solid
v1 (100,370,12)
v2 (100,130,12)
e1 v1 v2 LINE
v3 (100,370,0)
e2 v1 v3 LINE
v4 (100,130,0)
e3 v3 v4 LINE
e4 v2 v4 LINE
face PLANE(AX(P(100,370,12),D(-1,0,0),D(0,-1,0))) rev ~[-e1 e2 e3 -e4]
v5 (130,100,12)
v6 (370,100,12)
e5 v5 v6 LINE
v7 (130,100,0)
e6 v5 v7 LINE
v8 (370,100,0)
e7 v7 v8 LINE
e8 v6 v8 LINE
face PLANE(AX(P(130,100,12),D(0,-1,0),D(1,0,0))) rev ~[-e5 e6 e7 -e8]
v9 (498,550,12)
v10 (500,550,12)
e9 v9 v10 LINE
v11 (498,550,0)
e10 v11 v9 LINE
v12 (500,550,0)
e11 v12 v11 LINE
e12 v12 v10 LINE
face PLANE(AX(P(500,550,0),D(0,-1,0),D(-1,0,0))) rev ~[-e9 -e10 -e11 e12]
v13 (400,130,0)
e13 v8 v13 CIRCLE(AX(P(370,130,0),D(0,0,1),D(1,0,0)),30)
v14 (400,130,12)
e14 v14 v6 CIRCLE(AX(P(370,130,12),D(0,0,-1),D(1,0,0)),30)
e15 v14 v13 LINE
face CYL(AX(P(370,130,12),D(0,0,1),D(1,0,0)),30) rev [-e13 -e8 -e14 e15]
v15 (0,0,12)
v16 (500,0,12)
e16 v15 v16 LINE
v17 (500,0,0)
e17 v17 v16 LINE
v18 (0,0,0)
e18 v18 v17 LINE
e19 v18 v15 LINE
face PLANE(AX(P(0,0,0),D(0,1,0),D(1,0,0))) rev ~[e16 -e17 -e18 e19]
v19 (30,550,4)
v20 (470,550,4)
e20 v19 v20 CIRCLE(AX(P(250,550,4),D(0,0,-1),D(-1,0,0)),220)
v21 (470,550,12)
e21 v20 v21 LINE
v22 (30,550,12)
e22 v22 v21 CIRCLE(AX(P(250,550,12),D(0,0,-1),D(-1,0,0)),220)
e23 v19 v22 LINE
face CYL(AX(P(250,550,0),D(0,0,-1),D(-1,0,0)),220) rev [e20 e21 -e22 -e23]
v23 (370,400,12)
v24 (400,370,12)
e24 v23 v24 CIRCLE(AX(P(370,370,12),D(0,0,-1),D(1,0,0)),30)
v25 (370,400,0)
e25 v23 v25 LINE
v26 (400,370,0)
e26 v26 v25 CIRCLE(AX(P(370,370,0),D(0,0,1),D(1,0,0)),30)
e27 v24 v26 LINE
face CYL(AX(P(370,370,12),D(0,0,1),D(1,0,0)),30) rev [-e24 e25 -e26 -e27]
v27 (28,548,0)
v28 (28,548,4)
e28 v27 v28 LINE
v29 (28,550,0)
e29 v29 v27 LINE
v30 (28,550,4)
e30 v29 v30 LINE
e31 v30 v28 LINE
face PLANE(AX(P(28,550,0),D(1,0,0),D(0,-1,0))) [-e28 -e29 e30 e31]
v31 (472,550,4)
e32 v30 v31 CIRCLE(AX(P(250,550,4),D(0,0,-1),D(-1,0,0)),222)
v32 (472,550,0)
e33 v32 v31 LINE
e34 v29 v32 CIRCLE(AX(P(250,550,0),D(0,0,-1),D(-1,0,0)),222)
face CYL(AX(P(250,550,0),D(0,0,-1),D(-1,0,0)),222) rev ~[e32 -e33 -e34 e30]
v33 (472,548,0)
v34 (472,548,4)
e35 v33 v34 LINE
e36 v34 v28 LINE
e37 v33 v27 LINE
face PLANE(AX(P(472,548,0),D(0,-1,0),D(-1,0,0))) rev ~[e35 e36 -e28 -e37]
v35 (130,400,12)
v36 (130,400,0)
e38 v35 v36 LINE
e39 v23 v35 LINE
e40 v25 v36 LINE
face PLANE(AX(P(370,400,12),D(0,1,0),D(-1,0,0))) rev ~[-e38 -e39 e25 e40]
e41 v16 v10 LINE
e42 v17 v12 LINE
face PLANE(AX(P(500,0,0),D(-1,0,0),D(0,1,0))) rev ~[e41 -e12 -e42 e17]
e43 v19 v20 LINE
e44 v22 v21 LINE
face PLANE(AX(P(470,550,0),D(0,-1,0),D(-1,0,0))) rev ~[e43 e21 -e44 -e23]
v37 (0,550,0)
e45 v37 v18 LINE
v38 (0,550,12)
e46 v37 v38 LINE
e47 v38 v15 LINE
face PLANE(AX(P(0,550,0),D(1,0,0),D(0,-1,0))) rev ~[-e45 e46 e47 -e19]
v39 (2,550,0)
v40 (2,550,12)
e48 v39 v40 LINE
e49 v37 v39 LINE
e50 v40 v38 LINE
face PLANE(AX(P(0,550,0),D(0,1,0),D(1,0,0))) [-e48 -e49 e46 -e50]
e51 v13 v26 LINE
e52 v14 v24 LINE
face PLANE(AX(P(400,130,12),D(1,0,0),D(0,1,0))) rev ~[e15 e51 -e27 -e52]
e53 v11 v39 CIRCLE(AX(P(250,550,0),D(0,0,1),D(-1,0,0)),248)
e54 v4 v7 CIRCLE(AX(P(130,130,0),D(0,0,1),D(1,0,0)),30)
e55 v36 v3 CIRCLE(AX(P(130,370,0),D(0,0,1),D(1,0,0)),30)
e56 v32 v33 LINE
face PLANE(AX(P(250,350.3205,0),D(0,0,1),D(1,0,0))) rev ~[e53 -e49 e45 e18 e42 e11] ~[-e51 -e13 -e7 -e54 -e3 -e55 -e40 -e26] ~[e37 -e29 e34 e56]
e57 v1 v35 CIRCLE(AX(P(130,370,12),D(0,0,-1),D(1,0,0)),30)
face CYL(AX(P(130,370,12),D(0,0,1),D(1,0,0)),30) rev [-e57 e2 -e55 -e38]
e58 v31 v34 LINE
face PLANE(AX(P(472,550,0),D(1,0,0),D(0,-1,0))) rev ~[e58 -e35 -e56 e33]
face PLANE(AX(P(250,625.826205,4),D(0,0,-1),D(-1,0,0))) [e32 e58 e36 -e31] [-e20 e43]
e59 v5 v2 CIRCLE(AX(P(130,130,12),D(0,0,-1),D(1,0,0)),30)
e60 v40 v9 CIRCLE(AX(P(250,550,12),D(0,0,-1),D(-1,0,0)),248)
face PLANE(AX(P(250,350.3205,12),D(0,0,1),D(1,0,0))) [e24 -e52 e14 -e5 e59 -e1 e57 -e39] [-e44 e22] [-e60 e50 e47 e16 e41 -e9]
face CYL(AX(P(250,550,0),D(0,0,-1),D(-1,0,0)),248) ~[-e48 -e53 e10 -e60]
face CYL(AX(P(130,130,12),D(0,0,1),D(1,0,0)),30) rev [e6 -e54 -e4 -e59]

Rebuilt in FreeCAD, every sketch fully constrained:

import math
import FreeCAD as App
import Part
import Sketcher
from FreeCAD import Vector
Q = App.Units.Quantity

doc = App.newDocument("Part")
params = doc.addObject("Spreadsheet::Sheet", "Params")
for row, (alias, value) in enumerate([
    ("sketch1_radius", "250 mm"),
    ("sketch1_height", "550 mm"),
    ("pad1_length", "12 mm"),
    ("sketch2_radius", "30 mm"),
    ("sketch2_width", "240 mm"),
    ("pocket1_length", "429.6561 mm"),
    ("sketch3_radius", "220 mm"),
    ("pocket2_length", "186.1515 mm"),
    ("sketch4_radius", "222 mm"),
    ("sketch4_height", "2 mm"),
    ("pocket3_length", "4 mm"),
    ("sketch5_radius", "250 mm"),
    ("sketch5_radius2", "248 mm"),
    ("pocket4_length", "184.2167 mm"),
], start=1):
    params.set(f"A{row}", alias)
    params.set(f"B{row}", "=" + value)
    params.setAlias(f"B{row}", alias)

body = doc.addObject("PartDesign::Body", "Body")

# Sketch on XY plane
sketch1 = body.newObject("Sketcher::SketchObject", "Sketch")
sketch1.AttachmentSupport = (doc.getObject("XY_Plane"), [""])
sketch1.MapMode = "FlatFace"
sketch1.addGeometry(Part.LineSegment(Vector(0, 550, 0), Vector(0, 0, 0)), False)
sketch1.addGeometry(Part.LineSegment(Vector(0, 0, 0), Vector(500, 0, 0)), False)
sketch1.addGeometry(Part.LineSegment(Vector(500, 0, 0), Vector(500, 550, 0)), False)
sketch1.addGeometry(Part.ArcOfCircle(Part.Circle(Vector(250, 550, 0), Vector(0, 0, 1), 250), math.radians(0), math.radians(180)), False)
sketch1.addConstraint(Sketcher.Constraint("Coincident", 0, 2, 1, 1))
sketch1.addConstraint(Sketcher.Constraint("Coincident", 1, 2, 2, 1))
sketch1.addConstraint(Sketcher.Constraint("Tangent", 2, 2, 3, 1))
sketch1.addConstraint(Sketcher.Constraint("Tangent", 3, 2, 0, 1))
sketch1.addConstraint(Sketcher.Constraint("Vertical", 0))
sketch1.addConstraint(Sketcher.Constraint("Horizontal", 1))
sketch1.addConstraint(Sketcher.Constraint("Vertical", 2))
sketch1.addConstraint(Sketcher.Constraint("Coincident", 0, 2, -1, 1))
sketch1.addConstraint(Sketcher.Constraint("Radius", 3, Q("250 mm")))
sketch1.addConstraint(Sketcher.Constraint("DistanceY", 0, 2, 0, 1, Q("550 mm")))
sketch1.setExpression("Constraints[8]", "Params.sketch1_radius")
sketch1.setExpression("Constraints[9]", "Params.sketch1_height")
pad1 = body.newObject("PartDesign::Pad", "Pad")
pad1.Profile = sketch1
pad1.setExpression("Length", "Params.pad1_length")

# Sketch on XY plane
sketch2 = body.newObject("Sketcher::SketchObject", "Sketch001")
sketch2.AttachmentSupport = (doc.getObject("XY_Plane"), [""])
sketch2.MapMode = "FlatFace"
sketch2.AttachmentOffset = App.Placement(Vector(0, 0, 12), App.Rotation())
sketch2.addGeometry(Part.ArcOfCircle(Part.Circle(Vector(130, 130, 0), Vector(0, 0, 1), 30), math.radians(180), math.radians(270)), False)
sketch2.addGeometry(Part.LineSegment(Vector(130, 100, 0), Vector(370, 100, 0)), False)
sketch2.addGeometry(Part.ArcOfCircle(Part.Circle(Vector(370, 130, 0), Vector(0, 0, 1), 30), math.radians(-90), math.radians(0)), False)
sketch2.addGeometry(Part.LineSegment(Vector(400, 130, 0), Vector(400, 370, 0)), False)
sketch2.addGeometry(Part.ArcOfCircle(Part.Circle(Vector(370, 370, 0), Vector(0, 0, 1), 30), math.radians(0), math.radians(90)), False)
sketch2.addGeometry(Part.LineSegment(Vector(370, 400, 0), Vector(130, 400, 0)), False)
sketch2.addGeometry(Part.ArcOfCircle(Part.Circle(Vector(130, 370, 0), Vector(0, 0, 1), 30), math.radians(90), math.radians(180)), False)
sketch2.addGeometry(Part.LineSegment(Vector(100, 370, 0), Vector(100, 130, 0)), False)
sketch2.addConstraint(Sketcher.Constraint("Tangent", 0, 2, 1, 1))
sketch2.addConstraint(Sketcher.Constraint("Tangent", 1, 2, 2, 1))
sketch2.addConstraint(Sketcher.Constraint("Tangent", 2, 2, 3, 1))
sketch2.addConstraint(Sketcher.Constraint("Tangent", 3, 2, 4, 1))
sketch2.addConstraint(Sketcher.Constraint("Tangent", 4, 2, 5, 1))
sketch2.addConstraint(Sketcher.Constraint("Tangent", 5, 2, 6, 1))
sketch2.addConstraint(Sketcher.Constraint("Tangent", 6, 2, 7, 1))
sketch2.addConstraint(Sketcher.Constraint("Tangent", 7, 2, 0, 1))
sketch2.addConstraint(Sketcher.Constraint("Horizontal", 1))
sketch2.addConstraint(Sketcher.Constraint("Vertical", 3))
sketch2.addConstraint(Sketcher.Constraint("Horizontal", 5))
sketch2.addConstraint(Sketcher.Constraint("Vertical", 7))
sketch2.addConstraint(Sketcher.Constraint("Equal", 0, 2))
sketch2.addConstraint(Sketcher.Constraint("Equal", 2, 4))
sketch2.addConstraint(Sketcher.Constraint("Equal", 4, 6))
sketch2.addConstraint(Sketcher.Constraint("Equal", 5, 3))
sketch2.addConstraint(Sketcher.Constraint("Radius", 0, Q("30 mm")))
sketch2.addConstraint(Sketcher.Constraint("DistanceX", 1, 1, 1, 2, Q("240 mm")))
sketch2.addConstraint(Sketcher.Constraint("DistanceX", -1, 1, 0, 3, Q("130 mm")))
sketch2.addConstraint(Sketcher.Constraint("DistanceY", -1, 1, 0, 3, Q("130 mm")))
sketch2.setExpression("Constraints[16]", "Params.sketch2_radius")
sketch2.setExpression("Constraints[17]", "Params.sketch2_width")
pocket1 = body.newObject("PartDesign::Pocket", "Pocket")
pocket1.Profile = sketch2
pocket1.setExpression("Length", "Params.pocket1_length")

# Sketch on XY plane
sketch3 = body.newObject("Sketcher::SketchObject", "Sketch002")
sketch3.AttachmentSupport = (doc.getObject("XY_Plane"), [""])
sketch3.MapMode = "FlatFace"
sketch3.addGeometry(Part.ArcOfCircle(Part.Circle(Vector(250, 550, 0), Vector(0, 0, 1), 220), math.radians(0), math.radians(180)), False)
sketch3.addGeometry(Part.LineSegment(Vector(470, 550, 0), Vector(30, 550, 0)), False)
sketch3.addConstraint(Sketcher.Constraint("Coincident", 0, 1, 1, 1))
sketch3.addConstraint(Sketcher.Constraint("Coincident", 1, 2, 0, 2))
sketch3.addConstraint(Sketcher.Constraint("Horizontal", 1))
sketch3.addConstraint(Sketcher.Constraint("Radius", 0, Q("220 mm")))
sketch3.addConstraint(Sketcher.Constraint("DistanceX", -1, 1, 0, 3, Q("250 mm")))
sketch3.addConstraint(Sketcher.Constraint("DistanceY", -1, 1, 0, 3, Q("550 mm")))
sketch3.addConstraint(Sketcher.Constraint("DistanceY", -1, 1, 0, 1, Q("550 mm")))
sketch3.setExpression("Constraints[3]", "Params.sketch3_radius")
pocket2 = body.newObject("PartDesign::Pocket", "Pocket001")
pocket2.Profile = sketch3
pocket2.setExpression("Length", "Params.pocket2_length")
pocket2.Reversed = True

# Sketch on XY plane
sketch4 = body.newObject("Sketcher::SketchObject", "Sketch003")
sketch4.AttachmentSupport = (doc.getObject("XY_Plane"), [""])
sketch4.MapMode = "FlatFace"
sketch4.addGeometry(Part.LineSegment(Vector(28, 548, 0), Vector(28, 550, 0)), False)
sketch4.addGeometry(Part.ArcOfCircle(Part.Circle(Vector(250, 550, 0), Vector(0, 0, 1), 222), math.radians(0), math.radians(180)), False)
sketch4.addGeometry(Part.LineSegment(Vector(472, 550, 0), Vector(472, 548, 0)), False)
sketch4.addGeometry(Part.LineSegment(Vector(472, 548, 0), Vector(28, 548, 0)), False)
sketch4.addConstraint(Sketcher.Constraint("Tangent", 0, 2, 1, 2))
sketch4.addConstraint(Sketcher.Constraint("Tangent", 1, 1, 2, 1))
sketch4.addConstraint(Sketcher.Constraint("Coincident", 2, 2, 3, 1))
sketch4.addConstraint(Sketcher.Constraint("Coincident", 3, 2, 0, 1))
sketch4.addConstraint(Sketcher.Constraint("Vertical", 0))
sketch4.addConstraint(Sketcher.Constraint("Vertical", 2))
sketch4.addConstraint(Sketcher.Constraint("Horizontal", 3))
sketch4.addConstraint(Sketcher.Constraint("Radius", 1, Q("222 mm")))
sketch4.addConstraint(Sketcher.Constraint("DistanceY", 0, 1, 0, 2, Q("2 mm")))
sketch4.addConstraint(Sketcher.Constraint("DistanceX", -1, 1, 1, 3, Q("250 mm")))
sketch4.addConstraint(Sketcher.Constraint("DistanceY", -1, 1, 1, 3, Q("550 mm")))
sketch4.setExpression("Constraints[7]", "Params.sketch4_radius")
sketch4.setExpression("Constraints[8]", "Params.sketch4_height")
pocket3 = body.newObject("PartDesign::Pocket", "Pocket002")
pocket3.Profile = sketch4
pocket3.setExpression("Length", "Params.pocket3_length")
pocket3.Reversed = True

# Sketch on XY plane
sketch5 = body.newObject("Sketcher::SketchObject", "Sketch004")
sketch5.AttachmentSupport = (doc.getObject("XY_Plane"), [""])
sketch5.MapMode = "FlatFace"
sketch5.addGeometry(Part.LineSegment(Vector(2, 550, 0), Vector(0, 550, 0)), False)
sketch5.addGeometry(Part.ArcOfCircle(Part.Circle(Vector(250, 550, 0), Vector(0, 0, 1), 250), math.radians(0), math.radians(180)), False)
sketch5.addGeometry(Part.LineSegment(Vector(500, 550, 0), Vector(498, 550, 0)), False)
sketch5.addGeometry(Part.ArcOfCircle(Part.Circle(Vector(250, 550, 0), Vector(0, 0, 1), 248), math.radians(0), math.radians(180)), False)
sketch5.addConstraint(Sketcher.Constraint("Coincident", 0, 2, 1, 2))
sketch5.addConstraint(Sketcher.Constraint("Coincident", 1, 1, 2, 1))
sketch5.addConstraint(Sketcher.Constraint("Coincident", 2, 2, 3, 1))
sketch5.addConstraint(Sketcher.Constraint("Coincident", 3, 2, 0, 1))
sketch5.addConstraint(Sketcher.Constraint("Horizontal", 0))
sketch5.addConstraint(Sketcher.Constraint("Horizontal", 2))
sketch5.addConstraint(Sketcher.Constraint("Coincident", 3, 3, 1, 3))
sketch5.addConstraint(Sketcher.Constraint("PointOnObject", 0, 2, -2))
sketch5.addConstraint(Sketcher.Constraint("Horizontal", 3, 3, 0, 2))
sketch5.addConstraint(Sketcher.Constraint("Horizontal", 0, 2, 1, 1))
sketch5.addConstraint(Sketcher.Constraint("Radius", 1, Q("250 mm")))
sketch5.addConstraint(Sketcher.Constraint("Radius", 3, Q("248 mm")))
sketch5.addConstraint(Sketcher.Constraint("DistanceY", -1, 1, 1, 3, Q("550 mm")))
sketch5.setExpression("Constraints[10]", "Params.sketch5_radius")
sketch5.setExpression("Constraints[11]", "Params.sketch5_radius2")
pocket4 = body.newObject("PartDesign::Pocket", "Pocket003")
pocket4.Profile = sketch5
pocket4.setExpression("Length", "Params.pocket4_length")
pocket4.Reversed = True

doc.recompute()
